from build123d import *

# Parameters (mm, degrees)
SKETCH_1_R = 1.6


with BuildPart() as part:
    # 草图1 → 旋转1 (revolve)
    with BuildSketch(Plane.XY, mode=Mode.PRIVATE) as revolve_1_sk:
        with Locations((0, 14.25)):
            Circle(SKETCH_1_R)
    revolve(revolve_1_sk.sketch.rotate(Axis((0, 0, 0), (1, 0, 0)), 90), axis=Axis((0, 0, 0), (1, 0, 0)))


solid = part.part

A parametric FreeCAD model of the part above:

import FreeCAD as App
import Part
import Sketcher
from FreeCAD import Vector
Q = App.Units.Quantity

doc = App.newDocument("Part")
params = doc.addObject("Spreadsheet::Sheet", "Params")
for row, (alias, value) in enumerate([
    ("sketch1_diameter", "3.2 mm"),
    ("revolution_angle", "360 deg"),
], start=1):
    params.set(f"A{row}", alias)
    params.set(f"B{row}", "=" + value)
    params.setAlias(f"B{row}", alias)

body = doc.addObject("PartDesign::Body", "Body")

# Sketch on XY plane
sketch1 = body.newObject("Sketcher::SketchObject", "Sketch")
sketch1.AttachmentSupport = (doc.getObject("XY_Plane"), [""])
sketch1.MapMode = "FlatFace"
sketch1.addGeometry(Part.Circle(Vector(0, 14.2, 0), Vector(0, 0, 1), 1.6), False)
sketch1.addConstraint(Sketcher.Constraint("PointOnObject", 0, 3, -2))
sketch1.addConstraint(Sketcher.Constraint("Diameter", 0, Q("3.2 mm")))
sketch1.addConstraint(Sketcher.Constraint("DistanceY", -1, 1, 0, 3, Q("14.25 mm")))
sketch1.setExpression("Constraints[1]", "Params.sketch1_diameter")
revolution = body.newObject("PartDesign::Revolution", "Revolution")
revolution.Profile = sketch1
revolution.ReferenceAxis = (sketch1, ["H_Axis"])
revolution.setExpression("Angle", "Params.revolution_angle")

doc.recompute()
